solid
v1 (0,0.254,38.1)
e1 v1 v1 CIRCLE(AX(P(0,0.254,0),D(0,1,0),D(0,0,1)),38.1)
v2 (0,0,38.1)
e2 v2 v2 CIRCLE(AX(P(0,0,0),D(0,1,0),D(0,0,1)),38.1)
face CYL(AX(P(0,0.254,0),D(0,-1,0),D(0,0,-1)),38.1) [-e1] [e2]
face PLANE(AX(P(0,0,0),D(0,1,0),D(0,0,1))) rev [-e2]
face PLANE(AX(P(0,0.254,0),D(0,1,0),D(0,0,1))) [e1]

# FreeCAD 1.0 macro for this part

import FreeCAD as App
import Part
import Sketcher
Q = App.Units.Quantity

doc = App.newDocument("Part")
body = doc.addObject("PartDesign::Body", "Body")

sketch1 = doc.addObject("Sketcher::SketchObject", "Sketch")
body.addObject(sketch1)
sketch1.AttachmentSupport = (doc.XZ_Plane, [""])
sketch1.MapMode = "FlatFace"
sketch1.addGeometry(Part.Circle(App.Vector(0, 0, 0), App.Vector(0, 0, 1), 38), False)
sketch1.addConstraint(Sketcher.Constraint("Coincident", 0, 3, -1, 1))
sketch1.addConstraint(Sketcher.Constraint("Diameter", 0, Q("3 in")))
pad1 = doc.addObject("PartDesign::Pad", "Pad")
body.addObject(pad1)
pad1.Profile = sketch1
pad1.Length = Q("0.01 in")
pad1.Reversed = True

doc.recompute()
